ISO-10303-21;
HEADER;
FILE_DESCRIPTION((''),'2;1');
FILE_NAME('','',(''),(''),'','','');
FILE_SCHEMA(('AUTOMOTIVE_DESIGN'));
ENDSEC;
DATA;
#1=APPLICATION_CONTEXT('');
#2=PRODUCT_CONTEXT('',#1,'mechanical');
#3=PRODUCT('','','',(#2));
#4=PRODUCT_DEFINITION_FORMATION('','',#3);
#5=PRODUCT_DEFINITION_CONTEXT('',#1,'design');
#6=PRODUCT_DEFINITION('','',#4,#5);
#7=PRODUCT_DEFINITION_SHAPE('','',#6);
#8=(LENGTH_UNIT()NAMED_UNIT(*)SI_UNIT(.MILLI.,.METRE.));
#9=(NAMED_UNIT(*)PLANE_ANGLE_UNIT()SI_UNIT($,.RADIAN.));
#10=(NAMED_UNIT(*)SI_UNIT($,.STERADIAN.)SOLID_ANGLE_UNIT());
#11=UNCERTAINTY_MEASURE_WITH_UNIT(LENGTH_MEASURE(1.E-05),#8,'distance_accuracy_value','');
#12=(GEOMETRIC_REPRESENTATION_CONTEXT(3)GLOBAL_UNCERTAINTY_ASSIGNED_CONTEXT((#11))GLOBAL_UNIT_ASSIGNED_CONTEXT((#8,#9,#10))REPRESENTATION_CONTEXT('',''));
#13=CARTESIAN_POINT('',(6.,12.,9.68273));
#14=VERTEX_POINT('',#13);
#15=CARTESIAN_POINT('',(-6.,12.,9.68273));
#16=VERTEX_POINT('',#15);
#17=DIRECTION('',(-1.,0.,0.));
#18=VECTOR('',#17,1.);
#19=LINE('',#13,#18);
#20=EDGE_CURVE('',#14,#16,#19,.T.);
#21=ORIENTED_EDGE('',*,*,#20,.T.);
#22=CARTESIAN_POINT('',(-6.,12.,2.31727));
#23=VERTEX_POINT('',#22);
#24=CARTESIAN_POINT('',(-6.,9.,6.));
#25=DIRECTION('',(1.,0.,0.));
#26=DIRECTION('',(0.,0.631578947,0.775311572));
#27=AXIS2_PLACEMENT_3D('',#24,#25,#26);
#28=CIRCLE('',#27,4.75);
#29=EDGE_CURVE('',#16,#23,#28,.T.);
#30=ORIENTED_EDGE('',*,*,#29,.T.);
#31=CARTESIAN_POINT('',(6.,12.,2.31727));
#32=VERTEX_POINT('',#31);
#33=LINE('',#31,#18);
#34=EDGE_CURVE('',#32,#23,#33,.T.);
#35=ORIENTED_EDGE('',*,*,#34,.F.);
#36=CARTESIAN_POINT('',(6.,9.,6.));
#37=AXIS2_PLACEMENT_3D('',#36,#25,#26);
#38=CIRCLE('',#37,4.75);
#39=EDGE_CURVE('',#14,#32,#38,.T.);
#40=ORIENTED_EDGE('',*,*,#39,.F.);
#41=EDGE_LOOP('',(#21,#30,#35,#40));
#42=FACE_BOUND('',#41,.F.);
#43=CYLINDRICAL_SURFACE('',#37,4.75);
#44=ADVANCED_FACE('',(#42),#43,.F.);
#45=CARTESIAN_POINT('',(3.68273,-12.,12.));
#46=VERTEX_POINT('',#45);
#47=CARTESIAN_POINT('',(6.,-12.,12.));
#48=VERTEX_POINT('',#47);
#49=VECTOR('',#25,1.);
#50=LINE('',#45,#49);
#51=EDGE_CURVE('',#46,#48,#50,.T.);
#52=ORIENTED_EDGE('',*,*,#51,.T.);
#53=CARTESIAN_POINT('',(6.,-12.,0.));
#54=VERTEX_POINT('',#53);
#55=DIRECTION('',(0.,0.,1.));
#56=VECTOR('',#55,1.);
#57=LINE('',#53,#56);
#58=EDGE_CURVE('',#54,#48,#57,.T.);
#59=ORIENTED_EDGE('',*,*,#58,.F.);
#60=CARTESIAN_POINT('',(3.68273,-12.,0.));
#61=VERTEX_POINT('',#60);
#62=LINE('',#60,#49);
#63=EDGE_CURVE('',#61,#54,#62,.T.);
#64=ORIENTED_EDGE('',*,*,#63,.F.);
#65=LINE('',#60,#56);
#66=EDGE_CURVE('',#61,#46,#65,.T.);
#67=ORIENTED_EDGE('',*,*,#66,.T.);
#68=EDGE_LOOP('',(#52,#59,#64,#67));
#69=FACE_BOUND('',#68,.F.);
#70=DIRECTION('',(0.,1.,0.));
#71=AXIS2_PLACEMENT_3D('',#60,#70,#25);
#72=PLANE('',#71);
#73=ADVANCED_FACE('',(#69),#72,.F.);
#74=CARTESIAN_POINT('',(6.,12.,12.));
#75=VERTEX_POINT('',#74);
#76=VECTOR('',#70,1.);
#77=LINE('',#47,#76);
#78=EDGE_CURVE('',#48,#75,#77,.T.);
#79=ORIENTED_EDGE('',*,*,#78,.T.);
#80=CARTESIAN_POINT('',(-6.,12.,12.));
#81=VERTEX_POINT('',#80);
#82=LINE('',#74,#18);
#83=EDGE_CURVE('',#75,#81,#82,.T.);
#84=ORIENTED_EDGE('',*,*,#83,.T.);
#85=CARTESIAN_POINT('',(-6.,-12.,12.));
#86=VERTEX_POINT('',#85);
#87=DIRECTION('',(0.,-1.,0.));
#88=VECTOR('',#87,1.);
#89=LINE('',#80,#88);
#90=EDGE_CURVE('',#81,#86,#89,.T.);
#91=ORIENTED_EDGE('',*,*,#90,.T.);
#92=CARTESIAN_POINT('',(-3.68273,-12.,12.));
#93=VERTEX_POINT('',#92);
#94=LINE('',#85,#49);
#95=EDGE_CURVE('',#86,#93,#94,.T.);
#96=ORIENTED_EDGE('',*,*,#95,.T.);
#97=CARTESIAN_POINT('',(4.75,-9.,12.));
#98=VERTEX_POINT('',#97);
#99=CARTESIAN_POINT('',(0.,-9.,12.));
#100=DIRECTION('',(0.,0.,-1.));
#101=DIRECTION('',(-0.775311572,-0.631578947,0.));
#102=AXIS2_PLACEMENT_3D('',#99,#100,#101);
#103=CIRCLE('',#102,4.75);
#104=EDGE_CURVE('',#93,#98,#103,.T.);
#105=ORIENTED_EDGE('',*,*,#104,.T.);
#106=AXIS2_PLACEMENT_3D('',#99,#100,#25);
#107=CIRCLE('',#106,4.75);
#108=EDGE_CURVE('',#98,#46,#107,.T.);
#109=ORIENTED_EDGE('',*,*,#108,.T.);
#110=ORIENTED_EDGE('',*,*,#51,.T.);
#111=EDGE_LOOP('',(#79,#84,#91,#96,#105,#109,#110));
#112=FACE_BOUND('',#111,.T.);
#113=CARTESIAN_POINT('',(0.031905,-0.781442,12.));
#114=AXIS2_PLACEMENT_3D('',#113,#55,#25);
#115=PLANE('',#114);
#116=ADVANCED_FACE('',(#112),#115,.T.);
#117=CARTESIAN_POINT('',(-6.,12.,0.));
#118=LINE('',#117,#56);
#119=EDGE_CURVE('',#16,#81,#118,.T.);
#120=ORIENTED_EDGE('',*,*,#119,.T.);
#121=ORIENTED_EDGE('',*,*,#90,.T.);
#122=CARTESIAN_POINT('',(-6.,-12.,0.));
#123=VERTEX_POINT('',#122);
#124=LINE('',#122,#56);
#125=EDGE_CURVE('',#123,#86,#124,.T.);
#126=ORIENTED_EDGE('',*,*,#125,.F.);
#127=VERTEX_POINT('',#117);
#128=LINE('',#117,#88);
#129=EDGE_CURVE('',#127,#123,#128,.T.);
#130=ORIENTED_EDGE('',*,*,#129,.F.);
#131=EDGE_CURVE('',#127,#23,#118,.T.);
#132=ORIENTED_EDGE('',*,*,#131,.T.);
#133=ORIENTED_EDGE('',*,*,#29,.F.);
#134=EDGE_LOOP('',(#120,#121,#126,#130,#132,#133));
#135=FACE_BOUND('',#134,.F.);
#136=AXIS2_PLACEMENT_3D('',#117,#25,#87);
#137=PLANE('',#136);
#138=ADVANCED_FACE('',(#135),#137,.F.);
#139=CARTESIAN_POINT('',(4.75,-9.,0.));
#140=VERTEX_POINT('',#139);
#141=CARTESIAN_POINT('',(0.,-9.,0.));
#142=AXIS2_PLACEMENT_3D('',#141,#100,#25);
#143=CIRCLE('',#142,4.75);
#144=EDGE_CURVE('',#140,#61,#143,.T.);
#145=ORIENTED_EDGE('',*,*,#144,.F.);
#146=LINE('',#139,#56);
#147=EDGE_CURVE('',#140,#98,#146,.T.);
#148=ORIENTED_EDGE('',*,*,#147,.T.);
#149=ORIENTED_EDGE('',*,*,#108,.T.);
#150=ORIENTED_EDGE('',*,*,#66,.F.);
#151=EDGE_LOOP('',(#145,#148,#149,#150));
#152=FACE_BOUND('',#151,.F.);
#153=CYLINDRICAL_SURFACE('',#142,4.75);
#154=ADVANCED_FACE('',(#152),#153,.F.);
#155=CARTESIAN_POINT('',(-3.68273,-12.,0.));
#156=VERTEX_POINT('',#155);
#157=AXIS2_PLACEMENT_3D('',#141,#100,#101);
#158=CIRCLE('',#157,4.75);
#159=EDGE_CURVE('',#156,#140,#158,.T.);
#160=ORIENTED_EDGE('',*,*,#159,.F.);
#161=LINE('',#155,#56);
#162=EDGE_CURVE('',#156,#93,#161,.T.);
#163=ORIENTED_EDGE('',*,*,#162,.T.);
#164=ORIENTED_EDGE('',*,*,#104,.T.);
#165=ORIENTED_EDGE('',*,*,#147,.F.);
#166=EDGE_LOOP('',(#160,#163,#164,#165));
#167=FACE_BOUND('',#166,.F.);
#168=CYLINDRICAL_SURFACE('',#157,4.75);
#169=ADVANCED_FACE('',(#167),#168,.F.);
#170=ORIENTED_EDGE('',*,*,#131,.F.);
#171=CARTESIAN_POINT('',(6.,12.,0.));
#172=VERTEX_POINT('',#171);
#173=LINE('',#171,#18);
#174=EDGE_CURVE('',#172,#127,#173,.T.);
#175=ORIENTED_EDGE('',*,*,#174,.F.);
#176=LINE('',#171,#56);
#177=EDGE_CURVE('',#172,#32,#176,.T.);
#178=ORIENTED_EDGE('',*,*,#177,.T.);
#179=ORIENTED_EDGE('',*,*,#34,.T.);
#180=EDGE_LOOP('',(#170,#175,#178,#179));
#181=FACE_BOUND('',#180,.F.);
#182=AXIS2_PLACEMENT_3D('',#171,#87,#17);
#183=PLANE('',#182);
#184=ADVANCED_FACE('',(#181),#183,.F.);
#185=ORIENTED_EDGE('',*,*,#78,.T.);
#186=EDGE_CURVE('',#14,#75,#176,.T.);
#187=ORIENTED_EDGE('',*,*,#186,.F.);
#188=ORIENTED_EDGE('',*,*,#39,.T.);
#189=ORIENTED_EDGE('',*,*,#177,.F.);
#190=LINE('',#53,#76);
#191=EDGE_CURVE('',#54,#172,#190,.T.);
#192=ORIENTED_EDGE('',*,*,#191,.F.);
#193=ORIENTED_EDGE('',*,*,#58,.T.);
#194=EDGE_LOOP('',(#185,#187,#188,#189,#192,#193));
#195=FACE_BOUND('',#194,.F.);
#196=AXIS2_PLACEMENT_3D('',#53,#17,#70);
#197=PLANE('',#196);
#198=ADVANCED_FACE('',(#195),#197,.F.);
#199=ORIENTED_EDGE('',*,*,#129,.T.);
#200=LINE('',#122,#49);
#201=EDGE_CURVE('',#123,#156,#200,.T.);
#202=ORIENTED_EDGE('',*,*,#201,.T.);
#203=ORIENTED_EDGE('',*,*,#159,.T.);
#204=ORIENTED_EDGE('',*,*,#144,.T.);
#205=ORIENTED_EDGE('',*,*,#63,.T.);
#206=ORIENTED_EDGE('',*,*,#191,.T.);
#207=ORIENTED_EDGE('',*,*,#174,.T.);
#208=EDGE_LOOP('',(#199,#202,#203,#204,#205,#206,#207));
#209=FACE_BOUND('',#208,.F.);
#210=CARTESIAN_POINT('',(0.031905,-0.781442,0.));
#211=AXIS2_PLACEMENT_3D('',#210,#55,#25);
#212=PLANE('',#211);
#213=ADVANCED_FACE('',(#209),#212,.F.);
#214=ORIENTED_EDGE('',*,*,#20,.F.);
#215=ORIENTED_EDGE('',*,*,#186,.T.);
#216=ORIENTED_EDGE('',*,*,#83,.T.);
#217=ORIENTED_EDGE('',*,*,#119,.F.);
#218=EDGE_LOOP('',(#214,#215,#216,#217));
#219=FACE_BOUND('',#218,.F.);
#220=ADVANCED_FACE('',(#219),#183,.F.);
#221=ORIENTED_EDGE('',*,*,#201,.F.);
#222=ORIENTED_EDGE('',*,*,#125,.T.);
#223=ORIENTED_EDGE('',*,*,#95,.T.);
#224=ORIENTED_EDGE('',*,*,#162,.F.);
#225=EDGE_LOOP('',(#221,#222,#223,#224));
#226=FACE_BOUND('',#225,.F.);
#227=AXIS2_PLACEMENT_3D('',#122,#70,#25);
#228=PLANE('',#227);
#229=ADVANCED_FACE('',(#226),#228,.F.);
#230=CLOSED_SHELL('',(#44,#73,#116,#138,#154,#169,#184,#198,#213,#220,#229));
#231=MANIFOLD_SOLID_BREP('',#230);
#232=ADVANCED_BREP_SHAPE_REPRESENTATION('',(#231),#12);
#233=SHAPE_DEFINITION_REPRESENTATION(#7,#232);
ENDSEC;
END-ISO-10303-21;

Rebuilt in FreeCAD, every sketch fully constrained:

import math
import FreeCAD as App
import Part
import Sketcher
from FreeCAD import Vector
Q = App.Units.Quantity

doc = App.newDocument("Part")
params = doc.addObject("Spreadsheet::Sheet", "Params")
for row, (alias, value) in enumerate([
    ("sketch1_width", "12 mm"),
    ("sketch1_height", "24 mm"),
    ("sketch1_radius", "4.75 mm"),
    ("pad1_length", "12 mm"),
    ("sketch2_radius", "4.75 mm"),
], start=1):
    params.set(f"A{row}", alias)
    params.set(f"B{row}", "=" + value)
    params.setAlias(f"B{row}", alias)

body = doc.addObject("PartDesign::Body", "Body")

sketch1 = body.newObject("Sketcher::SketchObject", "Sketch")
sketch1.AttachmentSupport = (doc.getObject("XY_Plane"), [""])
sketch1.MapMode = "FlatFace"
sketch1.addGeometry([
    Part.LineSegment(Vector(6, -12, 0), Vector(6, 12, 0)),
    Part.LineSegment(Vector(6, 12, 0), Vector(-6, 12, 0)),
    Part.LineSegment(Vector(-6, 12, 0), Vector(-6, -12, 0)),
    Part.LineSegment(Vector(-6, -12, 0), Vector(-3.68273, -12, 0)),
    Part.ArcOfCircle(Part.Circle(Vector(0, -9, 0), Vector(0, 0, 1), 4.75), math.radians(0), math.radians(219.166711)),
    Part.ArcOfCircle(Part.Circle(Vector(0, -9, 0), Vector(0, 0, 1), 4.75), math.radians(-39.166711), math.radians(0)),
    Part.LineSegment(Vector(3.68273, -12, 0), Vector(6, -12, 0)),
], False)
sketch1.addConstraint([
    Sketcher.Constraint("Coincident", 0, 2, 1, 1),
    Sketcher.Constraint("Coincident", 1, 2, 2, 1),
    Sketcher.Constraint("Coincident", 2, 2, 3, 1),
    Sketcher.Constraint("Coincident", 3, 2, 4, 2),
    Sketcher.Constraint("Tangent", 4, 1, 5, 2),
    Sketcher.Constraint("Coincident", 5, 1, 6, 1),
    Sketcher.Constraint("Coincident", 6, 2, 0, 1),
    Sketcher.Constraint("Vertical", 0),
    Sketcher.Constraint("Horizontal", 1),
    Sketcher.Constraint("Vertical", 2),
    Sketcher.Constraint("Horizontal", 3),
    Sketcher.Constraint("Horizontal", 6),
    Sketcher.Constraint("Equal", 4, 5),
    Sketcher.Constraint("Symmetric", 0, 2, 2, 2, -1, 1),
    Sketcher.Constraint("Symmetric", 3, 2, 5, 1, -2),
    Sketcher.Constraint("Horizontal", 5, 3, 4, 1),
    Sketcher.Constraint("DistanceX", 1, 2, 1, 1, Q("12 mm")),
    Sketcher.Constraint("DistanceY", 0, 1, 0, 2, Q("24 mm")),
    Sketcher.Constraint("Radius", 4, Q("4.75 mm")),
    Sketcher.Constraint("DistanceY", 4, 3, -1, 1, Q("9 mm")),
])
sketch1.setExpression("Constraints[16]", "Params.sketch1_width")
sketch1.setExpression("Constraints[17]", "Params.sketch1_height")
sketch1.setExpression("Constraints[18]", "Params.sketch1_radius")
pad1 = body.newObject("PartDesign::Pad", "Pad")
pad1.Profile = sketch1
pad1.setExpression("Length", "Params.pad1_length")

sketch2 = body.newObject("Sketcher::SketchObject", "Sketch001")
sketch2.AttachmentSupport = (doc.getObject("YZ_Plane"), [""])
sketch2.MapMode = "FlatFace"
sketch2.AttachmentOffset = App.Placement(Vector(0, 0, 6), App.Rotation())
sketch2.addGeometry([
    Part.LineSegment(Vector(12, 2.31727, 0), Vector(12, 9.68273, 0)),
    Part.ArcOfCircle(Part.Circle(Vector(9, 6, 0), Vector(0, 0, 1), 4.75), math.radians(50.833289), math.radians(309.166711)),
], False)
sketch2.addConstraint([
    Sketcher.Constraint("Coincident", 0, 1, 1, 2),
    Sketcher.Constraint("Coincident", 1, 1, 0, 2),
    Sketcher.Constraint("Vertical", 0),
    Sketcher.Constraint("Radius", 1, Q("4.75 mm")),
    Sketcher.Constraint("DistanceX", -1, 1, 1, 3, Q("9 mm")),
    Sketcher.Constraint("DistanceY", -1, 1, 1, 3, Q("6 mm")),
    Sketcher.Constraint("DistanceX", -1, 1, 0, 1, Q("12 mm")),
])
sketch2.setExpression("Constraints[3]", "Params.sketch2_radius")
pocket1 = body.newObject("PartDesign::Pocket", "Pocket")
pocket1.Profile = sketch2
pocket1.Type = "ThroughAll"

doc.recompute()
